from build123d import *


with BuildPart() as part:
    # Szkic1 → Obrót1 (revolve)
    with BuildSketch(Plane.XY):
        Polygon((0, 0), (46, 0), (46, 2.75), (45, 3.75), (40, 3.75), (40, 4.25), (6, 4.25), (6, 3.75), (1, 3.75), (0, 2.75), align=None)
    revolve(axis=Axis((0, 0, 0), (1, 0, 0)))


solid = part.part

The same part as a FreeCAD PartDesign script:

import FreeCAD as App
import Part
import Sketcher
from FreeCAD import Vector
Q = App.Units.Quantity


def add_polygon(sketch, points):
    """Adds a closed chain of lines whose ends are joined by coincident constraints."""
    first, n = sketch.GeometryCount, len(points)
    for a, b in zip(points, points[1:] + points[:1]):
        sketch.addGeometry(Part.LineSegment(App.Vector(*a, 0), App.Vector(*b, 0)), False)
    for i in range(n):
        sketch.addConstraint(Sketcher.Constraint("Coincident", first + i, 2, first + (i + 1) % n, 1))

doc = App.newDocument("Part")
body = doc.addObject("PartDesign::Body", "Body")

# Sketch on XY plane
sketch1 = body.newObject("Sketcher::SketchObject", "Sketch")
sketch1.AttachmentSupport = (doc.getObject("XY_Plane"), [""])
sketch1.MapMode = "FlatFace"
add_polygon(sketch1, [(0, 0), (46, 0), (46, 2.75), (45, 3.75), (40, 3.75), (40, 4.25), (6, 4.25), (6, 3.75), (1, 3.75), (0, 2.75)])  # lines 0-9
sketch1.addConstraint([
    Sketcher.Constraint("Horizontal", 0),
    Sketcher.Constraint("Vertical", 1),
    Sketcher.Constraint("Horizontal", 3),
    Sketcher.Constraint("Vertical", 4),
    Sketcher.Constraint("Horizontal", 5),
    Sketcher.Constraint("Vertical", 6),
    Sketcher.Constraint("Horizontal", 7),
    Sketcher.Constraint("Vertical", 9),
    Sketcher.Constraint("Coincident", 9, 2, -1, 1),
    Sketcher.Constraint("Perpendicular", 2, 8),
    Sketcher.Constraint("Horizontal", 3, 2, 6, 2),
    Sketcher.Constraint("Horizontal", 1, 2, 8, 2),
    Sketcher.Constraint("Equal", 3, 7),
    Sketcher.Constraint("Equal", 2, 8),
    Sketcher.Constraint("DistanceX", 0, 1, 0, 2, Q("46 mm")),
    Sketcher.Constraint("DistanceX", 3, 2, 3, 1, Q("5 mm")),
    Sketcher.Constraint("DistanceX", 5, 2, 5, 1, Q("34 mm")),
    Sketcher.Constraint("DistanceY", 4, 1, 4, 2, Q("0.5 mm")),
    Sketcher.Constraint("DistanceY", 1, 1, 1, 2, Q("2.75 mm")),
])
revolution = body.newObject("PartDesign::Revolution", "Revolution")
revolution.Profile = sketch1
revolution.ReferenceAxis = (sketch1, ["H_Axis"])
revolution.Angle = 360

doc.recompute()
